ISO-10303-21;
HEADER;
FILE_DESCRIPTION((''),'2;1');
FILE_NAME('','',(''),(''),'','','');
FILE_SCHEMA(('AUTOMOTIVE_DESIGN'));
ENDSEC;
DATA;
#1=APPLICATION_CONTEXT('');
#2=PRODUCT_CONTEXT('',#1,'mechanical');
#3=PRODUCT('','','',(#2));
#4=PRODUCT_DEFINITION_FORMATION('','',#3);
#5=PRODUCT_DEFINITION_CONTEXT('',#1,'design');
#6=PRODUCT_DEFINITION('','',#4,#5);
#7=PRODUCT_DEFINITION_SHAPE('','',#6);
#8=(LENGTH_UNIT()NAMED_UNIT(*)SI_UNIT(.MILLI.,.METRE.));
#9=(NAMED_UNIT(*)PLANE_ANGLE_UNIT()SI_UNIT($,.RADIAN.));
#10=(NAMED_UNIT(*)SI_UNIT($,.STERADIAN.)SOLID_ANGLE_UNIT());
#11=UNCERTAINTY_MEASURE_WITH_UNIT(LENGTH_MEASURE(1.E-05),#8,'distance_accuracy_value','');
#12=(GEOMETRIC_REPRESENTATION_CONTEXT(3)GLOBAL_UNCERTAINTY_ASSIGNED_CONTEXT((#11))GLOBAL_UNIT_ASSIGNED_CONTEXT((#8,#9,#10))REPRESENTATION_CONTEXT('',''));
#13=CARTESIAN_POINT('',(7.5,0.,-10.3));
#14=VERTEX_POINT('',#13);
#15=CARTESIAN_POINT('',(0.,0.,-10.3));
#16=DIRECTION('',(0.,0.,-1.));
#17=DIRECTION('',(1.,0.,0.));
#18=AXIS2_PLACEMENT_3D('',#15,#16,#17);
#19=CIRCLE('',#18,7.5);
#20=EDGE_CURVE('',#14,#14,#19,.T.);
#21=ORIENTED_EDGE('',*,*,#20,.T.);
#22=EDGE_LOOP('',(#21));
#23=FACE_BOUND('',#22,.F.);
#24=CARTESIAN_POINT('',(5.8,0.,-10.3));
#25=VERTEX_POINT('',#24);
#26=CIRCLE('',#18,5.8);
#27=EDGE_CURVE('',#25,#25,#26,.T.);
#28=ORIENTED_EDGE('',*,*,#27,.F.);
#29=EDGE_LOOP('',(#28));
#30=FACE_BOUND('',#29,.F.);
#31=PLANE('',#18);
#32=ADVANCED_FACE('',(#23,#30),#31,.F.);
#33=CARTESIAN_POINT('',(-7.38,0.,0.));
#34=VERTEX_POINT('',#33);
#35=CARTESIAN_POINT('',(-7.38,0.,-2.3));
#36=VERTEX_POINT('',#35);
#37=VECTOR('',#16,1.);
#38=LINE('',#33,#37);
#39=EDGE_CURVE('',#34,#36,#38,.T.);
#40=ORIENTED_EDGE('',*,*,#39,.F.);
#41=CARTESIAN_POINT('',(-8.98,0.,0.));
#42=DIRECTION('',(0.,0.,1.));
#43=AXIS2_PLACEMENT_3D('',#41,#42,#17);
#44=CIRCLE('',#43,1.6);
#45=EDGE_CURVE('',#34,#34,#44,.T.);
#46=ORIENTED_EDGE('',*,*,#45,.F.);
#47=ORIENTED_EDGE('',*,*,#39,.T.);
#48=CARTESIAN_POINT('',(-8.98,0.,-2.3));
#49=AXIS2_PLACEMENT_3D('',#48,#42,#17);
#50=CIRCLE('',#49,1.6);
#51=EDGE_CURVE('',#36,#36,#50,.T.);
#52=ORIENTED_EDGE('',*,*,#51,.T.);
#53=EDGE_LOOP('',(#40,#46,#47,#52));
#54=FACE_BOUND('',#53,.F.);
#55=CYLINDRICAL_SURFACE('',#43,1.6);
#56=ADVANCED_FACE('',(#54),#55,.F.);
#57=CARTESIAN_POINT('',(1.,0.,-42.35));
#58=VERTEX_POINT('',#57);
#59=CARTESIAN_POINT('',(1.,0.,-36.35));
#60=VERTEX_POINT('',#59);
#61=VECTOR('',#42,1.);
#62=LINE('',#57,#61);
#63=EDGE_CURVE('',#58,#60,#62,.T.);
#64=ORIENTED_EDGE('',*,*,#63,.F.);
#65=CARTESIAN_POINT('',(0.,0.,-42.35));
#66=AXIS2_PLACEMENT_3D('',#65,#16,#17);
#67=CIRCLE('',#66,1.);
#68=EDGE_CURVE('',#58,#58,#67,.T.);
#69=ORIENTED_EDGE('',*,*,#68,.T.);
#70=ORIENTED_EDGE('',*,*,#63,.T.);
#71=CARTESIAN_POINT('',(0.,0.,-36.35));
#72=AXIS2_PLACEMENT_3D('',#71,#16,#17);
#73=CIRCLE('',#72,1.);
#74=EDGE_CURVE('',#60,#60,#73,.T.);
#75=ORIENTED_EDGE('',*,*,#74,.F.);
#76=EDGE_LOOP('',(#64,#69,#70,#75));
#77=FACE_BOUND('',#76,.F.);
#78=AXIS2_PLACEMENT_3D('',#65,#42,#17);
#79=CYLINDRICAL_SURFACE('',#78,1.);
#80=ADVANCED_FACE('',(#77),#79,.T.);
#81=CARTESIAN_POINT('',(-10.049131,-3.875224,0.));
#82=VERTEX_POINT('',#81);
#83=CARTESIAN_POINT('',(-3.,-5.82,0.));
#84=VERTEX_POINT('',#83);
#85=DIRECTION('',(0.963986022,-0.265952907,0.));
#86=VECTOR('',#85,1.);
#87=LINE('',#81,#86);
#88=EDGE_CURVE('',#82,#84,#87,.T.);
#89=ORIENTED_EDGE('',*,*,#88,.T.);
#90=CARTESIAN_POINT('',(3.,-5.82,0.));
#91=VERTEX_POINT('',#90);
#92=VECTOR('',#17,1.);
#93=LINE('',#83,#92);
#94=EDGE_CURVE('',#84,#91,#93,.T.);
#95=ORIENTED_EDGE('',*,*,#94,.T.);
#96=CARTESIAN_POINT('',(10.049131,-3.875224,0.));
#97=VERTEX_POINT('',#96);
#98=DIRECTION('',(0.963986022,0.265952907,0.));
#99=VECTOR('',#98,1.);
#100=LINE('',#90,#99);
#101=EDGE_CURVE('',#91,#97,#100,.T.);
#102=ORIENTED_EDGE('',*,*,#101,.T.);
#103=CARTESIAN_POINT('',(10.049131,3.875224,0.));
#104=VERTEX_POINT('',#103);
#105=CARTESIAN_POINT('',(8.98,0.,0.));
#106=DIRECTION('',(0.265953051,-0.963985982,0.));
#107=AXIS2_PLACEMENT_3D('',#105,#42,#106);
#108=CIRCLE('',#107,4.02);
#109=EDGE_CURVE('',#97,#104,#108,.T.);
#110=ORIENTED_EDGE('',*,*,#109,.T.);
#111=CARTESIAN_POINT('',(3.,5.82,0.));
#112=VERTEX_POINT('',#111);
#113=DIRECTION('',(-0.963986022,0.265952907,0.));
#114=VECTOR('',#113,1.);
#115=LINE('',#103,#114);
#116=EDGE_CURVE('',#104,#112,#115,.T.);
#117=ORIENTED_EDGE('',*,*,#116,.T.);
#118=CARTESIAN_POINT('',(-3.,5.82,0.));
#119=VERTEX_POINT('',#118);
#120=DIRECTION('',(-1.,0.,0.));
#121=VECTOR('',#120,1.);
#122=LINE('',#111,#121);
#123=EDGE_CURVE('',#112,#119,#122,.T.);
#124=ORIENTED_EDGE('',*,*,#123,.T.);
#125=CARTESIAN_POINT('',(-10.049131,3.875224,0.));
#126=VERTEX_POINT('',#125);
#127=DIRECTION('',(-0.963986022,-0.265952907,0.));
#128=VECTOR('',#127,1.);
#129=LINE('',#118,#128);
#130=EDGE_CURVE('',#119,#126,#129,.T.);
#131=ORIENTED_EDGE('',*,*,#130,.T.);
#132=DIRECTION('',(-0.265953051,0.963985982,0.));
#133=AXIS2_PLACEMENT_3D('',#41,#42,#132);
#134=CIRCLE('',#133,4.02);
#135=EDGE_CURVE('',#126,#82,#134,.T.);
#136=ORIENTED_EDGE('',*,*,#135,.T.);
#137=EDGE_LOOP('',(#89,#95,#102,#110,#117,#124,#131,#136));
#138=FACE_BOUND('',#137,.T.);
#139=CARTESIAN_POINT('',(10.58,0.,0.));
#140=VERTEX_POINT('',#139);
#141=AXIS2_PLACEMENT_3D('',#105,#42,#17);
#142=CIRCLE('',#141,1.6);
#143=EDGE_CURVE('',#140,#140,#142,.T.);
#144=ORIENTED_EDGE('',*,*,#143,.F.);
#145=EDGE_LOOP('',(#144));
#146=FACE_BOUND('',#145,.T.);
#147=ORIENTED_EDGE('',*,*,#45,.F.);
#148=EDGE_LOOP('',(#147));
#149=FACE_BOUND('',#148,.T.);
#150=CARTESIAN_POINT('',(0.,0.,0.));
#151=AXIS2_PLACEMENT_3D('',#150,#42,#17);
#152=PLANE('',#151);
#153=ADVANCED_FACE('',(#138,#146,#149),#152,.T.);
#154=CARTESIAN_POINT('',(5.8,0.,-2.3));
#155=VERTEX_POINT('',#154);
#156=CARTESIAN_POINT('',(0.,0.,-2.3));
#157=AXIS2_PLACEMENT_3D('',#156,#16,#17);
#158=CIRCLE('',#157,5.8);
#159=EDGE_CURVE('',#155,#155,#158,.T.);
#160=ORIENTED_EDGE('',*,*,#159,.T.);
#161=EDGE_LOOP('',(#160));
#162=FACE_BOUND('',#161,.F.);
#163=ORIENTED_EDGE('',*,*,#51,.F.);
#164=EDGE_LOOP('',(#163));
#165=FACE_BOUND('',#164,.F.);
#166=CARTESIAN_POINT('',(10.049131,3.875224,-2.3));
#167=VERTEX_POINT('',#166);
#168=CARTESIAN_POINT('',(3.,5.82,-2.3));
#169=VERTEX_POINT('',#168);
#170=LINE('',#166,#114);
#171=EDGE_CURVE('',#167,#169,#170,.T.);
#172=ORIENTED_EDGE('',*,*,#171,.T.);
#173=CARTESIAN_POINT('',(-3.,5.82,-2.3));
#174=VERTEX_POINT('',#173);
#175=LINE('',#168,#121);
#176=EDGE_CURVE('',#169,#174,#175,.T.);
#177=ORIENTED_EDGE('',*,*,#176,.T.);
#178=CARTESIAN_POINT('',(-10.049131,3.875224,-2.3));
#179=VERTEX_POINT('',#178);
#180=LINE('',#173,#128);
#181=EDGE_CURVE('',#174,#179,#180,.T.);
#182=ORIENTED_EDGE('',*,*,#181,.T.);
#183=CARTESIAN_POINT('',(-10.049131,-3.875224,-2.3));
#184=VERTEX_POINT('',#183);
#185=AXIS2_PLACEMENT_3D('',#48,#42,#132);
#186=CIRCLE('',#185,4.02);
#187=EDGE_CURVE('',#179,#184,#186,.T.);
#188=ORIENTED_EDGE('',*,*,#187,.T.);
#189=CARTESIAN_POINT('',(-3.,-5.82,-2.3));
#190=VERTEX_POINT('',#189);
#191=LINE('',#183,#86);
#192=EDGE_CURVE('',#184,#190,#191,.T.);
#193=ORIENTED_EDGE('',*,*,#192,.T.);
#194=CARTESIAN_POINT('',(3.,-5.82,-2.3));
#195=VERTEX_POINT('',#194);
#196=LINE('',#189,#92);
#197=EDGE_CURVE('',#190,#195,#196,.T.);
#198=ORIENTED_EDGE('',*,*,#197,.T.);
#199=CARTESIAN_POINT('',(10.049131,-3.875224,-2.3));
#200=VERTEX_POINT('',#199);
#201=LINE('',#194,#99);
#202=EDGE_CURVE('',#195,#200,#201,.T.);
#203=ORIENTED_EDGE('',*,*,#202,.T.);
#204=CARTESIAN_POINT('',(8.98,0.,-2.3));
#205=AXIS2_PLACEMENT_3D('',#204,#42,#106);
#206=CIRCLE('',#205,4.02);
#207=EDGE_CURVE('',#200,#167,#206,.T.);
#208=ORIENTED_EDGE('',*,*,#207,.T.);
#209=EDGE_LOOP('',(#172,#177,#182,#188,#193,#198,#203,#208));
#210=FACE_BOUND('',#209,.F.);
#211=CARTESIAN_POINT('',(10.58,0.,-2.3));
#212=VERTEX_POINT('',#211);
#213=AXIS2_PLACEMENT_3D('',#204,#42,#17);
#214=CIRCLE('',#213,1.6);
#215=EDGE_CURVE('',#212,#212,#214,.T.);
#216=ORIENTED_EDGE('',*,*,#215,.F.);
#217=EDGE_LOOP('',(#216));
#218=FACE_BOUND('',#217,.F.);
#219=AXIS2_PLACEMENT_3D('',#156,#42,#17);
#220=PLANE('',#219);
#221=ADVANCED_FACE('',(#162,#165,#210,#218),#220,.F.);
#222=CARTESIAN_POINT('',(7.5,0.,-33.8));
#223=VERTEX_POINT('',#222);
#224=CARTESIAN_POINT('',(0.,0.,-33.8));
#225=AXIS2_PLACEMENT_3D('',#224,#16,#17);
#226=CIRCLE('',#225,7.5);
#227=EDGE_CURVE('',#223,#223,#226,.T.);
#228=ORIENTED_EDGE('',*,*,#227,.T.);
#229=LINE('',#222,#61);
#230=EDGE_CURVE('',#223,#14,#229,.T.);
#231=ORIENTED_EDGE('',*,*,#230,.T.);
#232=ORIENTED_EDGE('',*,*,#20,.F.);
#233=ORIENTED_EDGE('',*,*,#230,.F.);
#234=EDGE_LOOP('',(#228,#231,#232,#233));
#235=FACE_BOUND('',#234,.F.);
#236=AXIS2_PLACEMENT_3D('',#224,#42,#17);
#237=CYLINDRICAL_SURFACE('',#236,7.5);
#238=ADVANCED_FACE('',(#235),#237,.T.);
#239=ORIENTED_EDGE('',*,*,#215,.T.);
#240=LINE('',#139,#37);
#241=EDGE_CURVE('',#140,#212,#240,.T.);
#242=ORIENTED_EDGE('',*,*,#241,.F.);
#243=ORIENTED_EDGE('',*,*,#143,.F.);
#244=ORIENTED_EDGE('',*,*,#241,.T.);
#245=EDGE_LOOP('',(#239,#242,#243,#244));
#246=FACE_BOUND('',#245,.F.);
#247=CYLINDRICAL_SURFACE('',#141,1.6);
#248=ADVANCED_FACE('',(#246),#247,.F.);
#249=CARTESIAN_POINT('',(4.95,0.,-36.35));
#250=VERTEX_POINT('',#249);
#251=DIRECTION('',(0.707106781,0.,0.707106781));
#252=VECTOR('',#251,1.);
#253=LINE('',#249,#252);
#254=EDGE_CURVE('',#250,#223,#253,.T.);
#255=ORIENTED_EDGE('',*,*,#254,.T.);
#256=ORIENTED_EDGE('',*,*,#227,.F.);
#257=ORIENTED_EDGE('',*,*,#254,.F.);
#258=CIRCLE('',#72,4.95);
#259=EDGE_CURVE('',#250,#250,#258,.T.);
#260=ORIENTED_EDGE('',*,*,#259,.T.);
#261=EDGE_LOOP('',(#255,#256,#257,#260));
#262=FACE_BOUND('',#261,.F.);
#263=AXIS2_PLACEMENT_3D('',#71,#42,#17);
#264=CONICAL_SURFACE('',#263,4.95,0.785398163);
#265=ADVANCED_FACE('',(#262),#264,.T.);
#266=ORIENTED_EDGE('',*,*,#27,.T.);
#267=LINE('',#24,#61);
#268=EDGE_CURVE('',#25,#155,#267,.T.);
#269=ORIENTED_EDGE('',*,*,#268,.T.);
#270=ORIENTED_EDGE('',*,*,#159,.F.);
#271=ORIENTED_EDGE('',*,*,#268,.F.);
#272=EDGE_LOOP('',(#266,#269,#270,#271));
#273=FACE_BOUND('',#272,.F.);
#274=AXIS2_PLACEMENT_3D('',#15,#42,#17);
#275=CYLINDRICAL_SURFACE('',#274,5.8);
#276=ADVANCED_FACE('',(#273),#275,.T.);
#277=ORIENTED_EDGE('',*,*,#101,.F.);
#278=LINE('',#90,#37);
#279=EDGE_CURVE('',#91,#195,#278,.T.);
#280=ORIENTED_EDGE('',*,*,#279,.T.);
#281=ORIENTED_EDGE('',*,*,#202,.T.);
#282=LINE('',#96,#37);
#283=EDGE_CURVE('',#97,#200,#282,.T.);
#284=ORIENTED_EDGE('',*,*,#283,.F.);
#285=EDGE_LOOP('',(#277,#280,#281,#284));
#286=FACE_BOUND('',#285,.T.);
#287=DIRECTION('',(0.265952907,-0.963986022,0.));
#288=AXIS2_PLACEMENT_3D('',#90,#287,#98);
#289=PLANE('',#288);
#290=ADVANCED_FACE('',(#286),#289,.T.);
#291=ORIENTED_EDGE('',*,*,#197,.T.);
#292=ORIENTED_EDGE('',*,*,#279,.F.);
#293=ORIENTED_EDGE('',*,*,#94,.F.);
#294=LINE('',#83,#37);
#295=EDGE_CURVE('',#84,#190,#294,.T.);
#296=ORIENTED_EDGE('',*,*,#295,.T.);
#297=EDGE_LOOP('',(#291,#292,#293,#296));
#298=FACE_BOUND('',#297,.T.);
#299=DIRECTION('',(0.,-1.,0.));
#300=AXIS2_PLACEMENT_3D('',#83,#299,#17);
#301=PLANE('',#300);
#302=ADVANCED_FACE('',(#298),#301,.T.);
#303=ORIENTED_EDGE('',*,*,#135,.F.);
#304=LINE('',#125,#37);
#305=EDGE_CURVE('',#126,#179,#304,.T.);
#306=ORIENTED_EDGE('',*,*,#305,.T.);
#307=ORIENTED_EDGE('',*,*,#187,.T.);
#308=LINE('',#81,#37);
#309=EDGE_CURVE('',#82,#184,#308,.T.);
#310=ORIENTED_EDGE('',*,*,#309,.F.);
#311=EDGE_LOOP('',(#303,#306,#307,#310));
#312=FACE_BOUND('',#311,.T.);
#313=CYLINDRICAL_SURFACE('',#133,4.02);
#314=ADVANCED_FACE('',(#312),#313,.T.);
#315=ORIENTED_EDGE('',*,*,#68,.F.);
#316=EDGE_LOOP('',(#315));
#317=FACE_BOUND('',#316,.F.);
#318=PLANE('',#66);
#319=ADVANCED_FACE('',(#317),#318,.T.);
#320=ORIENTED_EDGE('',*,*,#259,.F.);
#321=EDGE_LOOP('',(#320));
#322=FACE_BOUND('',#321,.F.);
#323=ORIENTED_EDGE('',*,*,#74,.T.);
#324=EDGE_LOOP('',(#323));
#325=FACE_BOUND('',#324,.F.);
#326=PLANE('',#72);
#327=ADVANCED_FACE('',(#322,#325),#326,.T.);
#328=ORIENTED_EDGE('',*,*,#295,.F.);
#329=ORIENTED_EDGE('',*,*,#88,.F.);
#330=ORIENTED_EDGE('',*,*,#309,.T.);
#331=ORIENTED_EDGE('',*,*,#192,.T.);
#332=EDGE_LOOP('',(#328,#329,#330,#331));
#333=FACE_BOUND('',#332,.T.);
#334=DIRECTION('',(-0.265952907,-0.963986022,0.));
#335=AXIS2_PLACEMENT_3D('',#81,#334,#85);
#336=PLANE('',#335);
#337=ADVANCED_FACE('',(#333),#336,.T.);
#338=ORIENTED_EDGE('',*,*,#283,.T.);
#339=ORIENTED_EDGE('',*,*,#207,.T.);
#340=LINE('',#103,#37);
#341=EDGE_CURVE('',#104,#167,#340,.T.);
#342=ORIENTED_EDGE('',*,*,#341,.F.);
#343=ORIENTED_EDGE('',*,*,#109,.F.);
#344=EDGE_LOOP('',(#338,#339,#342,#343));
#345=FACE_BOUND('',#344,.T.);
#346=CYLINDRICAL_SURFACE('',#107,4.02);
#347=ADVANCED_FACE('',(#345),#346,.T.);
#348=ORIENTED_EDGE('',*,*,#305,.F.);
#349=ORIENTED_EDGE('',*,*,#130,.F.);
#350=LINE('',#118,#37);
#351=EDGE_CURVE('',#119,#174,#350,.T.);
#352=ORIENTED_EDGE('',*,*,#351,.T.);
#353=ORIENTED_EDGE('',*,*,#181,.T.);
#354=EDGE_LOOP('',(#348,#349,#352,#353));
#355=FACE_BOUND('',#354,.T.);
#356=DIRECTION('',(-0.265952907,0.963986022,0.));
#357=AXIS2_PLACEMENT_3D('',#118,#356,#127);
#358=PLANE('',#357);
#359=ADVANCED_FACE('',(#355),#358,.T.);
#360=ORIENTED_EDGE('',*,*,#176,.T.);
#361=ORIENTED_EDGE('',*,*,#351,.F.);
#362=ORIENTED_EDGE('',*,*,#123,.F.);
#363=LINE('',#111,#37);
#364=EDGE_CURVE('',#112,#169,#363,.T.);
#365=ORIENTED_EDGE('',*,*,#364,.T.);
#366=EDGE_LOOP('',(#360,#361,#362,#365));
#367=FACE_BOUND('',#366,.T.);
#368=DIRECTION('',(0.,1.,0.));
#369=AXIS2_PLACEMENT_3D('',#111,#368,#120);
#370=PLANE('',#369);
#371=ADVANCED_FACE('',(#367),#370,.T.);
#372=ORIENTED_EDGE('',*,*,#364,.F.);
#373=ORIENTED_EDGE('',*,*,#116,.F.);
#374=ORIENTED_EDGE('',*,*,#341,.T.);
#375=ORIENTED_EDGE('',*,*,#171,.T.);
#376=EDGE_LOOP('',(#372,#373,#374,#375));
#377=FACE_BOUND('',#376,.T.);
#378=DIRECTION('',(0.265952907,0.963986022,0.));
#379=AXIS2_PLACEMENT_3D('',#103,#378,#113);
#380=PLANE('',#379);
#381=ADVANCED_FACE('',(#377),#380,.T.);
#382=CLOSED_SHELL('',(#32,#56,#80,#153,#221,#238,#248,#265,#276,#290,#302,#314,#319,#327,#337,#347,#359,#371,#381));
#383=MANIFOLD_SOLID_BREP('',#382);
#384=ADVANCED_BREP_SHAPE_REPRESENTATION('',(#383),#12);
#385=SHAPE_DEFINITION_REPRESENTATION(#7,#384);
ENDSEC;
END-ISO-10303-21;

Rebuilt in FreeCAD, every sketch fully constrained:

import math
import FreeCAD as App
import Part
import Sketcher
Q = App.Units.Quantity

doc = App.newDocument("Part")
body = doc.addObject("PartDesign::Body", "Body")

# Sketch on XY plane
sketch1 = body.newObject("Sketcher::SketchObject", "Sketch")
sketch1.AttachmentSupport = (doc.getObject("XY_Plane"), [""])
sketch1.MapMode = "FlatFace"
sketch1.addGeometry([
    Part.LineSegment(App.Vector(3, -5.8, 0), App.Vector(10, -3.9, 0)),  # 0
    Part.ArcOfCircle(Part.Circle(App.Vector(9, 0, 0), App.Vector(0, 0, 1), 4), math.radians(-75), math.radians(75)),  # 1
    Part.LineSegment(App.Vector(10, 3.9, 0), App.Vector(3, 5.8, 0)),  # 2
    Part.LineSegment(App.Vector(3, 5.8, 0), App.Vector(-3, 5.8, 0)),  # 3
    Part.LineSegment(App.Vector(-3, 5.8, 0), App.Vector(-10, 3.9, 0)),  # 4
    Part.ArcOfCircle(Part.Circle(App.Vector(-9, 0, 0), App.Vector(0, 0, 1), 4), math.radians(105), math.radians(255)),  # 5
    Part.LineSegment(App.Vector(-10, -3.9, 0), App.Vector(-3, -5.8, 0)),  # 6
    Part.LineSegment(App.Vector(-3, -5.8, 0), App.Vector(3, -5.8, 0)),  # 7
    Part.Circle(App.Vector(-9, 0, 0), App.Vector(0, 0, 1), 1.6),  # 8
    Part.Circle(App.Vector(9, 0, 0), App.Vector(0, 0, 1), 1.6),  # 9
], False)
sketch1.addConstraint([
    Sketcher.Constraint("Tangent", 0, 2, 1, 1),
    Sketcher.Constraint("Tangent", 1, 2, 2, 1),
    Sketcher.Constraint("Coincident", 2, 2, 3, 1),
    Sketcher.Constraint("Coincident", 3, 2, 4, 1),
    Sketcher.Constraint("Tangent", 4, 2, 5, 1),
    Sketcher.Constraint("Tangent", 5, 2, 6, 1),
    Sketcher.Constraint("Coincident", 6, 2, 7, 1),
    Sketcher.Constraint("Coincident", 7, 2, 0, 1),
    Sketcher.Constraint("Horizontal", 3),
    Sketcher.Constraint("Horizontal", 7),
    Sketcher.Constraint("Coincident", 8, 3, 5, 3),
    Sketcher.Constraint("Coincident", 9, 3, 1, 3),
    Sketcher.Constraint("Equal", 1, 5),
    Sketcher.Constraint("Equal", 8, 9),
    Sketcher.Constraint("Symmetric", 1, 3, 5, 3, -1, 1),
    Sketcher.Constraint("Symmetric", 2, 2, 6, 2, -1, 1),
    Sketcher.Constraint("Symmetric", 1, 2, 4, 2, -2),
    Sketcher.Constraint("Parallel", 0, 4),
    Sketcher.Constraint("Diameter", 8, 3.2),
    Sketcher.Constraint("DistanceX", 3, 2, 3, 1, 6.0),
    Sketcher.Constraint("Radius", 1, 4.02),
    Sketcher.Constraint("DistanceX", -1, 1, 1, 3, 8.98),
    Sketcher.Constraint("DistanceY", -1, 1, 2, 2, 5.82),
])
pad1 = body.newObject("PartDesign::Pad", "Pad")
pad1.Profile = sketch1
pad1.Length = 2.3
pad1.Reversed = True

# Sketch on XZ plane
sketch2 = body.newObject("Sketcher::SketchObject", "Sketch001")
sketch2.AttachmentSupport = (doc.getObject("XZ_Plane"), [""])
sketch2.MapMode = "FlatFace"
sketch2.addGeometry([
    Part.LineSegment(App.Vector(5.8, -2.3, 0), App.Vector(0, -2.3, 0)),  # 0
    Part.LineSegment(App.Vector(0, -2.3, 0), App.Vector(0, -42.4, 0)),  # 1
    Part.LineSegment(App.Vector(0, -42.4, 0), App.Vector(1, -42.4, 0)),  # 2
    Part.LineSegment(App.Vector(1, -42.4, 0), App.Vector(1, -36.4, 0)),  # 3
    Part.LineSegment(App.Vector(1, -36.4, 0), App.Vector(5, -36.4, 0)),  # 4
    Part.LineSegment(App.Vector(5, -36.4, 0), App.Vector(7.5, -33.8, 0)),  # 5
    Part.LineSegment(App.Vector(7.5, -33.8, 0), App.Vector(7.5, -10.3, 0)),  # 6
    Part.LineSegment(App.Vector(7.5, -10.3, 0), App.Vector(5.8, -10.3, 0)),  # 7
    Part.LineSegment(App.Vector(5.8, -10.3, 0), App.Vector(5.8, -2.3, 0)),  # 8
], False)
sketch2.addConstraint([
    Sketcher.Constraint("Coincident", 0, 2, 1, 1),
    Sketcher.Constraint("Coincident", 1, 2, 2, 1),
    Sketcher.Constraint("Coincident", 2, 2, 3, 1),
    Sketcher.Constraint("Coincident", 3, 2, 4, 1),
    Sketcher.Constraint("Coincident", 4, 2, 5, 1),
    Sketcher.Constraint("Coincident", 5, 2, 6, 1),
    Sketcher.Constraint("Coincident", 6, 2, 7, 1),
    Sketcher.Constraint("Coincident", 7, 2, 8, 1),
    Sketcher.Constraint("Coincident", 8, 2, 0, 1),
    Sketcher.Constraint("Horizontal", 0),
    Sketcher.Constraint("Vertical", 1),
    Sketcher.Constraint("Horizontal", 2),
    Sketcher.Constraint("Vertical", 3),
    Sketcher.Constraint("Horizontal", 4),
    Sketcher.Constraint("Vertical", 6),
    Sketcher.Constraint("Horizontal", 7),
    Sketcher.Constraint("Vertical", 8),
    Sketcher.Constraint("PointOnObject", 0, 2, -2),
    Sketcher.Constraint("DistanceX", 2, 1, 2, 2, 1.0),
    Sketcher.Constraint("DistanceY", 3, 1, 3, 2, 6.0),
    Sketcher.Constraint("DistanceY", 8, 1, 8, 2, 8.0),
    Sketcher.Constraint("Angle", 5, Q("45 deg")),
    Sketcher.Constraint("DistanceX", 0, 2, 0, 1, 5.8),
    Sketcher.Constraint("DistanceX", 7, 2, 7, 1, 1.7),
    Sketcher.Constraint("DistanceY", 6, 1, 6, 2, 23.5),
    Sketcher.Constraint("DistanceX", 4, 1, 4, 2, 3.95),
    Sketcher.Constraint("DistanceY", 0, 2, -1, 1, 2.3),
])
revolution = body.newObject("PartDesign::Revolution", "Revolution")
revolution.Profile = sketch2
revolution.ReferenceAxis = (sketch2, ["V_Axis"])
revolution.Angle = 360

doc.recompute()
